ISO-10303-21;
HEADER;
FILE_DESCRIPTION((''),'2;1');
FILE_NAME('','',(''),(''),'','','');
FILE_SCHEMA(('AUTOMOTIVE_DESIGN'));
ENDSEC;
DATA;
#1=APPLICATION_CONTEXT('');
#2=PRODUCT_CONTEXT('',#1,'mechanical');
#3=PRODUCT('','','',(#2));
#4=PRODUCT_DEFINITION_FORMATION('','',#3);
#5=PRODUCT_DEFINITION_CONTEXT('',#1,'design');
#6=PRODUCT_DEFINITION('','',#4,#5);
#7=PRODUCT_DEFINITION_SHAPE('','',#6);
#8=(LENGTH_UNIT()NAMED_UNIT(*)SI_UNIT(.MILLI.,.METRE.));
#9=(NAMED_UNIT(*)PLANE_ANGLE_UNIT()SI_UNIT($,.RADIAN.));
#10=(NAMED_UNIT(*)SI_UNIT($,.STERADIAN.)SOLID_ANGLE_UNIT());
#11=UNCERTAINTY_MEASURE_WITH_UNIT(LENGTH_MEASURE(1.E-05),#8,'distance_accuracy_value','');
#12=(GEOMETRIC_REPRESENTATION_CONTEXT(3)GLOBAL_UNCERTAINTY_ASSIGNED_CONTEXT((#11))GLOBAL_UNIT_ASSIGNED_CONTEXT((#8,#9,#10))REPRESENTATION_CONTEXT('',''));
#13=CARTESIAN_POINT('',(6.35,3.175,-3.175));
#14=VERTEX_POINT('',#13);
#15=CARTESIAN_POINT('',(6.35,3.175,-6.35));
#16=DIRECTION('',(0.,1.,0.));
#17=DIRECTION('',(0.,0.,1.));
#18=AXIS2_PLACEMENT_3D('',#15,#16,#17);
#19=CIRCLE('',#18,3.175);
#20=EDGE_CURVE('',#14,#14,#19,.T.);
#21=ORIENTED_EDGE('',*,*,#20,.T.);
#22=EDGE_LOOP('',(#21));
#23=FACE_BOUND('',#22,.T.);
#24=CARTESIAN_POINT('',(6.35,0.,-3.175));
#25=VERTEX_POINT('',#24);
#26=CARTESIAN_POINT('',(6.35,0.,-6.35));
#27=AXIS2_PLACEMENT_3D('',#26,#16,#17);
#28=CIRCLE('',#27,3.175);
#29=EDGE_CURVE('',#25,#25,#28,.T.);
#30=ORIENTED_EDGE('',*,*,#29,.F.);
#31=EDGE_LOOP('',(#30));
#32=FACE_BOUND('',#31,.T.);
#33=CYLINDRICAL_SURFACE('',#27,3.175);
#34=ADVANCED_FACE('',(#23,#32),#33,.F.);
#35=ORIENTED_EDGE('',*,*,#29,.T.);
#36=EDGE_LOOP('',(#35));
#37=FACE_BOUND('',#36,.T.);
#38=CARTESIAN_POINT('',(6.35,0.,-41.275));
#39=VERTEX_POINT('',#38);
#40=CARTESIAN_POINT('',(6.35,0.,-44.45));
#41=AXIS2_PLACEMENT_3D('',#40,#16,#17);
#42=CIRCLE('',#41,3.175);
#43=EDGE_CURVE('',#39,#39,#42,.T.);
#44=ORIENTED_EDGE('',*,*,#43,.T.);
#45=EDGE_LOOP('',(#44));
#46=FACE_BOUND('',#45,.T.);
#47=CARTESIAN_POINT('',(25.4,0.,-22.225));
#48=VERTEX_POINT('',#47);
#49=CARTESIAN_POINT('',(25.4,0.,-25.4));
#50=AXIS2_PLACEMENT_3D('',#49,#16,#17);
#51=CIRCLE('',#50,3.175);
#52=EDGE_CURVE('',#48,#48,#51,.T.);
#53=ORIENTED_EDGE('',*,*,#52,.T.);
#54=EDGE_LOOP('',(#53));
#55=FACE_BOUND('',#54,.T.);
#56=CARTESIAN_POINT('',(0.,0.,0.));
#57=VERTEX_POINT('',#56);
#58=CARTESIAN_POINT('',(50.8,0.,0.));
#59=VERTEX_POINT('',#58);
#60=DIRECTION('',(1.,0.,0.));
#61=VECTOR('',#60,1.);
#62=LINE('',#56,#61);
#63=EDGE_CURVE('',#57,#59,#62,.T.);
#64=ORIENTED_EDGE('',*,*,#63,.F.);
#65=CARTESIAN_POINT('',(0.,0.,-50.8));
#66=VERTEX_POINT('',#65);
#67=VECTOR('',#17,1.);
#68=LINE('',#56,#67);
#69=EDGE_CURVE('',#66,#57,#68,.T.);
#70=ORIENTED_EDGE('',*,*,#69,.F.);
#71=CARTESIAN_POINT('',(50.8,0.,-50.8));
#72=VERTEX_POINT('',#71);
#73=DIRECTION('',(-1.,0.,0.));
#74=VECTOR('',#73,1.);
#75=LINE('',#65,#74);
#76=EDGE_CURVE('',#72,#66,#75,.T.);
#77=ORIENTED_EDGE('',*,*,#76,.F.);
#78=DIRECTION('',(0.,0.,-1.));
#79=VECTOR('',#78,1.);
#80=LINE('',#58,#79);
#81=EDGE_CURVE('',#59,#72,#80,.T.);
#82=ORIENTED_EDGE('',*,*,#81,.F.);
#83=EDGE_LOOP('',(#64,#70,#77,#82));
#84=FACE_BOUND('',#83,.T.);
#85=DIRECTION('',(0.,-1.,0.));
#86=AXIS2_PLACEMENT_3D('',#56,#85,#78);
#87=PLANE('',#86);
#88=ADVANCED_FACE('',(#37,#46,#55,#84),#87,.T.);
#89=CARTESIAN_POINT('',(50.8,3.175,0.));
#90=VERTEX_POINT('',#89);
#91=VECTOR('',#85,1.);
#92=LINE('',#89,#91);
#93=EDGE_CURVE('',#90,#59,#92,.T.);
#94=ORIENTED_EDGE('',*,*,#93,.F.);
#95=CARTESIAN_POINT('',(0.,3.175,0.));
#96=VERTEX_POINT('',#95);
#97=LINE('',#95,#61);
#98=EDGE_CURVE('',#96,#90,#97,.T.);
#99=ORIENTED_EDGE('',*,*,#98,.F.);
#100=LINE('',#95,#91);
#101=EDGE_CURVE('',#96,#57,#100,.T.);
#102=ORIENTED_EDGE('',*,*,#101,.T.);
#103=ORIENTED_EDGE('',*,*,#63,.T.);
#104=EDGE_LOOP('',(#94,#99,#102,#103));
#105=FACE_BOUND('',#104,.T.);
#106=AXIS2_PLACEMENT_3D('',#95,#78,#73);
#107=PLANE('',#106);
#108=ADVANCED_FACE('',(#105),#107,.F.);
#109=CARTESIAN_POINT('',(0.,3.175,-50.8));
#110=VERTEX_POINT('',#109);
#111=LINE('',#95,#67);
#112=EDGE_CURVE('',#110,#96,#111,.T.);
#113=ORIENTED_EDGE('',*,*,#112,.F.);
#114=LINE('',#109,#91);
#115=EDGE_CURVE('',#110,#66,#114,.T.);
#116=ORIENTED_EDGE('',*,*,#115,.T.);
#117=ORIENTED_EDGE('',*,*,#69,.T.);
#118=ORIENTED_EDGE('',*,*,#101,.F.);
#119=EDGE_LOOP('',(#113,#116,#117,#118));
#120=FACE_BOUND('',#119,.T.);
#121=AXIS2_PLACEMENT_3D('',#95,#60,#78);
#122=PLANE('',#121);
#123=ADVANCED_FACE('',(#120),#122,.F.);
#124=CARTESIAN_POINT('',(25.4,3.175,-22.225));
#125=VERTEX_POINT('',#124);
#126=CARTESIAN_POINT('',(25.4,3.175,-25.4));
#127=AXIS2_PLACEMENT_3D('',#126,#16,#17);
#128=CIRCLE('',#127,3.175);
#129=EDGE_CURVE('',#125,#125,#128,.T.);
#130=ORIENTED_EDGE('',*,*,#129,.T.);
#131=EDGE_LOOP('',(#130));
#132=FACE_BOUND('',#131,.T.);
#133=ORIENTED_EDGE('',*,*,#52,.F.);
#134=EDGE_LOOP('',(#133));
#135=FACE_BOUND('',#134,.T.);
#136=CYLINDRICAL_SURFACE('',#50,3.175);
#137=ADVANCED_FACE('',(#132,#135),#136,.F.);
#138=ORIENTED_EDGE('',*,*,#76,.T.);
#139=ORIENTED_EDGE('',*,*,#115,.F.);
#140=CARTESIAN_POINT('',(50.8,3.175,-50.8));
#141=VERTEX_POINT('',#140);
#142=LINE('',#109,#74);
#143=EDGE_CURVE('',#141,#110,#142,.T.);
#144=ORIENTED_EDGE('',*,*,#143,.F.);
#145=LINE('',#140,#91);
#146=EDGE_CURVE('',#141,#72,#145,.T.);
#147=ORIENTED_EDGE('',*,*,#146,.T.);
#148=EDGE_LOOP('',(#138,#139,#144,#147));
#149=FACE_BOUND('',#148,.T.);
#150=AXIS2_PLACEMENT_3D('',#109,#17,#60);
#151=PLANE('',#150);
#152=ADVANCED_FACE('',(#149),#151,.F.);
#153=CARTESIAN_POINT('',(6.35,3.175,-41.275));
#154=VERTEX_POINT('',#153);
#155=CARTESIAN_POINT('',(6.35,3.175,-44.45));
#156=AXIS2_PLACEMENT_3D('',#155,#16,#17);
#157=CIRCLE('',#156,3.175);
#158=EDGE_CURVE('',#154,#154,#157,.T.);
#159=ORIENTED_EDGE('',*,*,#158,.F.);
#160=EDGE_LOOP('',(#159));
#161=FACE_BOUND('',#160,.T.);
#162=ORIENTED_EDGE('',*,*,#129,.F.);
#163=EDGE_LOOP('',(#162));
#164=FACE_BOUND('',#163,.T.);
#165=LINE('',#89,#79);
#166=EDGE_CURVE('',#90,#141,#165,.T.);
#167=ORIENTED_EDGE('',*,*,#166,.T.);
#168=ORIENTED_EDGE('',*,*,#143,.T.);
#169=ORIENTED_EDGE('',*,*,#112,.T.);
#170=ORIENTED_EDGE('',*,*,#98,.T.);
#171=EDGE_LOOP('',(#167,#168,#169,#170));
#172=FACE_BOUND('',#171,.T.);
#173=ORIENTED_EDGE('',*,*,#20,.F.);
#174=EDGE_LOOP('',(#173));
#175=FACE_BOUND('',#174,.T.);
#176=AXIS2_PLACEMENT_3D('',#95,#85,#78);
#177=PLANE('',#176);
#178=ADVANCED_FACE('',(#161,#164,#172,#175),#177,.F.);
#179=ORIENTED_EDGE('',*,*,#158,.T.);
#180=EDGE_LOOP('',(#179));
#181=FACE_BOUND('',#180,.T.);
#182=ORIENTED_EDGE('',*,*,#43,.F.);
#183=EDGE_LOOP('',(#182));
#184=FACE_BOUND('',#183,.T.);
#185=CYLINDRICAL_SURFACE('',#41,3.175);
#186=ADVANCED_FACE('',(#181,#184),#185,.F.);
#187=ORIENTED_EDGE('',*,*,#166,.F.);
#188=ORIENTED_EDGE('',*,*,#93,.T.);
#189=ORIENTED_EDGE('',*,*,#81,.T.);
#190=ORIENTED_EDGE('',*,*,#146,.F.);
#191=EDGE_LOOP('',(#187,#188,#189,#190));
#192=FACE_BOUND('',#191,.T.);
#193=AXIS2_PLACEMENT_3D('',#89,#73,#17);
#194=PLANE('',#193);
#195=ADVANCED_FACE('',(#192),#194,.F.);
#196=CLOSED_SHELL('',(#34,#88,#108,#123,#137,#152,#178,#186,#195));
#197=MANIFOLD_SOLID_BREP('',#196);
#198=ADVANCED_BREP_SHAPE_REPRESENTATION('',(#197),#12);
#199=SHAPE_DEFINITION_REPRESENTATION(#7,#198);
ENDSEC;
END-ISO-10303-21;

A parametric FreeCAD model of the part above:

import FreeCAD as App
import Part
import Sketcher

V = App.Vector
Q = App.Units.Quantity


def add_polygon(sketch, points):
    """Adds a closed chain of lines whose ends are joined by coincident constraints."""
    first, n = sketch.GeometryCount, len(points)
    for a, b in zip(points, points[1:] + points[:1]):
        sketch.addGeometry(Part.LineSegment(App.Vector(*a, 0), App.Vector(*b, 0)), False)
    for i in range(n):
        sketch.addConstraint(Sketcher.Constraint("Coincident", first + i, 2, first + (i + 1) % n, 1))

doc = App.newDocument("Part")
body = doc.addObject("PartDesign::Body", "Body")

# Sketch on XZ plane
sketch1 = doc.addObject("Sketcher::SketchObject", "Sketch")
body.addObject(sketch1)
sketch1.AttachmentSupport = (doc.XZ_Plane, [""])
sketch1.MapMode = "FlatFace"
add_polygon(sketch1, [(0, -51), (0, 0), (51, 0), (51, -51)])  # lines 0-3
sketch1.addConstraint([
    Sketcher.Constraint("Vertical", 0),
    Sketcher.Constraint("Horizontal", 1),
    Sketcher.Constraint("Vertical", 2),
    Sketcher.Constraint("Horizontal", 3),
    Sketcher.Constraint("Coincident", 0, 2, -1, 1),
    Sketcher.Constraint("Equal", 3, 0),
    Sketcher.Constraint("DistanceX", 1, 1, 1, 2, Q("2 in")),
])
pad1 = doc.addObject("PartDesign::Pad", "Pad")
body.addObject(pad1)
pad1.Profile = sketch1
pad1.Length = Q("0.125 in")
pad1.Reversed = True

# Sketch on XZ plane
sketch2 = doc.addObject("Sketcher::SketchObject", "Sketch001")
body.addObject(sketch2)
sketch2.AttachmentSupport = (doc.XZ_Plane, [""])
sketch2.MapMode = "FlatFace"
sketch2.AttachmentOffset = App.Placement(V(0, 0, -0.125 * 25.4), App.Rotation())
sketch2.addGeometry([
    Part.Circle(V(6.3, -44.5, 0), V(0, 0, 1), 3.2),
    Part.Circle(V(6.3, -6.3, 0), V(0, 0, 1), 3.2),
    Part.Circle(V(25.4, -25.4, 0), V(0, 0, 1), 3.2),
], False)
sketch2.addConstraint([
    Sketcher.Constraint("Equal", 0, 1),
    Sketcher.Constraint("Equal", 1, 2),
    Sketcher.Constraint("Vertical", 0, 3, 1, 3),
    Sketcher.Constraint("Diameter", 0, Q("0.25 in")),
    Sketcher.Constraint("DistanceX", -1, 1, 2, 3, Q("1 in")),
    Sketcher.Constraint("DistanceY", 2, 3, -1, 1, Q("1 in")),
    Sketcher.Constraint("DistanceY", 0, 3, 1, 3, Q("1.5 in")),
    Sketcher.Constraint("DistanceX", -1, 1, 0, 3, Q("0.25 in")),
    Sketcher.Constraint("DistanceY", 0, 3, -1, 1, Q("1.75 in")),
])
pocket1 = doc.addObject("PartDesign::Pocket", "Pocket")
body.addObject(pocket1)
pocket1.Profile = sketch2
pocket1.Length = Q("0.125 in")
pocket1.Reversed = True

doc.recompute()
